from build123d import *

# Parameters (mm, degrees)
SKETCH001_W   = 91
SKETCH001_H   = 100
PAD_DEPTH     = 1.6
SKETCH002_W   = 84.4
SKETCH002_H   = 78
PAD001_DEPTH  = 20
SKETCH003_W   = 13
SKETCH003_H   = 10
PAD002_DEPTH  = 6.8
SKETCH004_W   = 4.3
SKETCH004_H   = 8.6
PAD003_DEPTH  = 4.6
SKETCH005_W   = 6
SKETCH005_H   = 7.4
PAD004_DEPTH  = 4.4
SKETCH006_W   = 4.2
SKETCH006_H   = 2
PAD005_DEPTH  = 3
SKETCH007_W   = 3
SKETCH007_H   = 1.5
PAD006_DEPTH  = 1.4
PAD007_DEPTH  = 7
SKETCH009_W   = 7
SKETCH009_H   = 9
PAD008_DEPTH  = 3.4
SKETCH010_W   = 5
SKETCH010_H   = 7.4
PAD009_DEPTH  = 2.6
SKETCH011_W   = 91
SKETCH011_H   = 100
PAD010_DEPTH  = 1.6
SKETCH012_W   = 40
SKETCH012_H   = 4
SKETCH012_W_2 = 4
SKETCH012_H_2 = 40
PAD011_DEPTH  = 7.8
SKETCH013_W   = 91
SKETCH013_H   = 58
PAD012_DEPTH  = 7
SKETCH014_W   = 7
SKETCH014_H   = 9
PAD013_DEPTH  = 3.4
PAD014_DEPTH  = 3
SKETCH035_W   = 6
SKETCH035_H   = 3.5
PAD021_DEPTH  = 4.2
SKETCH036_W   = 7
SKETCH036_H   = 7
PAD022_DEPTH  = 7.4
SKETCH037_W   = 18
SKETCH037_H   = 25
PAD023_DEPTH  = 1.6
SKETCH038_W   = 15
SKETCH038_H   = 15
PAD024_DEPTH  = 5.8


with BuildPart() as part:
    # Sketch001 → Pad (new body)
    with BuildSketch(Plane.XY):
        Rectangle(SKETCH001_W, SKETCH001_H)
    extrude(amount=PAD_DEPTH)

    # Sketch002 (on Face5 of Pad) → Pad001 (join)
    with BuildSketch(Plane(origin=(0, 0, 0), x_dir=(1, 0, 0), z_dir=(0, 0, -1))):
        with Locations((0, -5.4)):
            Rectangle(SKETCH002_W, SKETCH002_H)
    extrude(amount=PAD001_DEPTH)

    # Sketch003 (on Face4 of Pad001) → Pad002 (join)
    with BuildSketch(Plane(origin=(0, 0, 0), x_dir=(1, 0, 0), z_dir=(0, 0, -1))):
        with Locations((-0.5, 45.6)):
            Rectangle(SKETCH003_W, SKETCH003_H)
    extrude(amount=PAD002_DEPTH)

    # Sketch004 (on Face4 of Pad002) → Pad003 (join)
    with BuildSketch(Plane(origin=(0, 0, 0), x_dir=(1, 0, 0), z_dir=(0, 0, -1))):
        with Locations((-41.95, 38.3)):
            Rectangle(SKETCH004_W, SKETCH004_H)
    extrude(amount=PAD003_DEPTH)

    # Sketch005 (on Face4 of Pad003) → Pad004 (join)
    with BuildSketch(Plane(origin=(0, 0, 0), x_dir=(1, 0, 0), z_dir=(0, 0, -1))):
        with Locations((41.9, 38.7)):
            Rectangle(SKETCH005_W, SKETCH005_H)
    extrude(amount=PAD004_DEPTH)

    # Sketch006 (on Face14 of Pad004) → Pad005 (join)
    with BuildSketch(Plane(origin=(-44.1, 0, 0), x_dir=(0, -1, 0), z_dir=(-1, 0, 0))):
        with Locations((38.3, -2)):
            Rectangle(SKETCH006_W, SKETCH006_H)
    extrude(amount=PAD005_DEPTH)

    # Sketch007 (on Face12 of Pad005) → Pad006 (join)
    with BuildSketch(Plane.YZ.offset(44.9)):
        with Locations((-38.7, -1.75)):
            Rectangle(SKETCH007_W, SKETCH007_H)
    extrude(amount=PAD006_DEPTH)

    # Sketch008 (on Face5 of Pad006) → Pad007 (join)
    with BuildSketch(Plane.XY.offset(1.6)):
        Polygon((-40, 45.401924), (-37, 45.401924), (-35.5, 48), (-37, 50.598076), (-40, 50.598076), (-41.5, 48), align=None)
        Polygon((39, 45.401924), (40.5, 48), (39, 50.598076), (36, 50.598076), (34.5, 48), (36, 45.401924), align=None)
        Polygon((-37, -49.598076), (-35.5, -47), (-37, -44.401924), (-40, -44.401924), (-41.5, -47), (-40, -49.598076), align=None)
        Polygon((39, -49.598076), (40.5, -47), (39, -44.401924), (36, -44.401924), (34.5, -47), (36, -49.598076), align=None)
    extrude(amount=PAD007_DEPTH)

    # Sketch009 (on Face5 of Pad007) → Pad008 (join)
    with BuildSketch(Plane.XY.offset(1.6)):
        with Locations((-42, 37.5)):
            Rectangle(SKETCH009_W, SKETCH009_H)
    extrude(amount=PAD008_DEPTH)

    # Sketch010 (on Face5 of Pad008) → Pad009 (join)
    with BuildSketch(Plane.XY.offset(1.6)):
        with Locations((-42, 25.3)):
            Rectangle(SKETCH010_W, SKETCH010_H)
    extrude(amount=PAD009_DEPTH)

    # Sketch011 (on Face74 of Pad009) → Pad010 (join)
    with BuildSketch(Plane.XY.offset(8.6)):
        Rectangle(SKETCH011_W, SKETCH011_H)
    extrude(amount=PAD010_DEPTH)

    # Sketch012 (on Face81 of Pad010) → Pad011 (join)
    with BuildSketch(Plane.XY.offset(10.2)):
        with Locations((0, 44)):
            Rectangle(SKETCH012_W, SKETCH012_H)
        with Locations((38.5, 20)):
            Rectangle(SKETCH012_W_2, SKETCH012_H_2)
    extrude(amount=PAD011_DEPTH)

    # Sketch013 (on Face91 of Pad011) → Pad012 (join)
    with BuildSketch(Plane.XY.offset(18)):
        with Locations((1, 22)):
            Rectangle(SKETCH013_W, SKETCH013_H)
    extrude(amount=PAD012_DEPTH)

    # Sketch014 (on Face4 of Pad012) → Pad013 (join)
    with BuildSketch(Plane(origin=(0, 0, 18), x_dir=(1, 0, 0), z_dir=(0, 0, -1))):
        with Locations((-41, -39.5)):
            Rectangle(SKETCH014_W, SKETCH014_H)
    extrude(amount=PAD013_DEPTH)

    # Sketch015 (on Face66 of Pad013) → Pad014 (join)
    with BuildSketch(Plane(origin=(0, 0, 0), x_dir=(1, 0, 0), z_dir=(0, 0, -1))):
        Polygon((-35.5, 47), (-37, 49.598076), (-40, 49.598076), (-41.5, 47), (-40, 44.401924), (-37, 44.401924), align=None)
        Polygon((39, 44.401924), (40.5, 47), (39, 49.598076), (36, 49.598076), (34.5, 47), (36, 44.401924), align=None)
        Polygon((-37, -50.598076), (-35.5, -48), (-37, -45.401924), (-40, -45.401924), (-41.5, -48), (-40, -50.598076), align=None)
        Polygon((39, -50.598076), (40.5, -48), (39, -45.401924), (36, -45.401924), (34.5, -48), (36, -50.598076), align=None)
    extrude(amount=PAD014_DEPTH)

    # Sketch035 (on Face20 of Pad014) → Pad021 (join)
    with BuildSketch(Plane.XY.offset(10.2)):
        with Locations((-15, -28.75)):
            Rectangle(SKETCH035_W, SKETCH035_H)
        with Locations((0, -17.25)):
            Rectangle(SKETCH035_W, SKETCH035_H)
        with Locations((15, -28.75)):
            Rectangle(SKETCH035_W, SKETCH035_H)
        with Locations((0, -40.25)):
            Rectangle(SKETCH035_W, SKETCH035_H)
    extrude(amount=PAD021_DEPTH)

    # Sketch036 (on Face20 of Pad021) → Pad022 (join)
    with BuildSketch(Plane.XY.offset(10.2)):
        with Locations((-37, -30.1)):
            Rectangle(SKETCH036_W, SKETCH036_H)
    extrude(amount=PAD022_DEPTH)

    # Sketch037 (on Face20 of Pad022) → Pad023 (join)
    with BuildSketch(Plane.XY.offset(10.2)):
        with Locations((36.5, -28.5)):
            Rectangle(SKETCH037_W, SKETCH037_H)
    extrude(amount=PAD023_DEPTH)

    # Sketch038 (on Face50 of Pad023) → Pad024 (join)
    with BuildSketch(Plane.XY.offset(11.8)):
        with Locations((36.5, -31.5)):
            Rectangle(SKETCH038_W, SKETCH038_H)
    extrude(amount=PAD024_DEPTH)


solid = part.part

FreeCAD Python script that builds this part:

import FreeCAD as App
import Part
import Sketcher
from FreeCAD import Vector
Q = App.Units.Quantity


def add_polygon(sketch, points):
    """Adds a closed chain of lines whose ends are joined by coincident constraints."""
    first, n = sketch.GeometryCount, len(points)
    for a, b in zip(points, points[1:] + points[:1]):
        sketch.addGeometry(Part.LineSegment(App.Vector(*a, 0), App.Vector(*b, 0)), False)
    for i in range(n):
        sketch.addConstraint(Sketcher.Constraint("Coincident", first + i, 2, first + (i + 1) % n, 1))

doc = App.newDocument("Part")
body = doc.addObject("PartDesign::Body", "Body")

# Sketch on XY plane
sketch1 = doc.addObject("Sketcher::SketchObject", "Sketch")
body.addObject(sketch1)
sketch1.AttachmentSupport = (doc.XY_Plane, [""])
sketch1.MapMode = "FlatFace"
add_polygon(sketch1, [(-46, 50), (-46, -50), (46, -50), (46, 50)])  # lines 0-3
sketch1.addConstraint([
    Sketcher.Constraint("Vertical", 0),
    Sketcher.Constraint("Horizontal", 1),
    Sketcher.Constraint("Vertical", 2),
    Sketcher.Constraint("Horizontal", 3),
    Sketcher.Constraint("Symmetric", 0, 2, 2, 2, -1, 1),
    Sketcher.Constraint("DistanceX", 1, 1, 1, 2, 91.0),
    Sketcher.Constraint("DistanceY", 0, 2, 0, 1, 100.0),
])
pad1 = doc.addObject("PartDesign::Pad", "Pad")
body.addObject(pad1)
pad1.Profile = sketch1
pad1.Length = 1.6

# Sketch on XY plane
sketch2 = doc.addObject("Sketcher::SketchObject", "Sketch001")
body.addObject(sketch2)
sketch2.AttachmentSupport = (doc.XY_Plane, [""])
sketch2.MapMode = "FlatFace"
add_polygon(sketch2, [(-42, -34), (-42, 44), (42, 44), (42, -34)])  # lines 0-3
sketch2.addConstraint([
    Sketcher.Constraint("Vertical", 0),
    Sketcher.Constraint("Horizontal", 1),
    Sketcher.Constraint("Vertical", 2),
    Sketcher.Constraint("Horizontal", 3),
    Sketcher.Constraint("DistanceY", 0, 1, 0, 2, 78.0),
    Sketcher.Constraint("DistanceX", 1, 1, 1, 2, 84.4),
    Sketcher.Constraint("DistanceX", 0, 2, -1, 1, 42.2),
    Sketcher.Constraint("DistanceY", -1, 1, 0, 2, 44.4),
])
pad2 = doc.addObject("PartDesign::Pad", "Pad001")
body.addObject(pad2)
pad2.Profile = sketch2
pad2.Length = 20
pad2.Reversed = True

# Sketch on XY plane
sketch3 = doc.addObject("Sketcher::SketchObject", "Sketch002")
body.addObject(sketch3)
sketch3.AttachmentSupport = (doc.XY_Plane, [""])
sketch3.MapMode = "FlatFace"
add_polygon(sketch3, [(-7, -51), (-7, -41), (6, -41), (6, -51)])  # lines 0-3
sketch3.addConstraint([
    Sketcher.Constraint("Vertical", 0),
    Sketcher.Constraint("Horizontal", 1),
    Sketcher.Constraint("Vertical", 2),
    Sketcher.Constraint("Horizontal", 3),
    Sketcher.Constraint("DistanceX", 1, 1, 1, 2, 13.0),
    Sketcher.Constraint("DistanceY", 0, 1, 0, 2, 10.0),
    Sketcher.Constraint("DistanceX", 0, 2, -1, 1, 7.0),
    Sketcher.Constraint("DistanceY", 0, 2, -1, 1, 40.6),
])
pad3 = doc.addObject("PartDesign::Pad", "Pad002")
body.addObject(pad3)
pad3.Profile = sketch3
pad3.Length = 6.8
pad3.Reversed = True

# Sketch on XY plane
sketch4 = doc.addObject("Sketcher::SketchObject", "Sketch003")
body.addObject(sketch4)
sketch4.AttachmentSupport = (doc.XY_Plane, [""])
sketch4.MapMode = "FlatFace"
add_polygon(sketch4, [(-44.1, -42.6), (-44.1, -34), (-39.8, -34), (-39.8, -42.6)])  # lines 0-3
sketch4.addConstraint([
    Sketcher.Constraint("Vertical", 0),
    Sketcher.Constraint("Horizontal", 1),
    Sketcher.Constraint("Vertical", 2),
    Sketcher.Constraint("Horizontal", 3),
    Sketcher.Constraint("DistanceX", 1, 1, 1, 2, 4.3),
    Sketcher.Constraint("DistanceY", 0, 1, 0, 2, 8.6),
    Sketcher.Constraint("DistanceY", 0, 2, -1, 1, 34.0),
    Sketcher.Constraint("DistanceX", 0, 2, -1, 1, 44.1),
])
pad4 = doc.addObject("PartDesign::Pad", "Pad003")
body.addObject(pad4)
pad4.Profile = sketch4
pad4.Length = 4.6
pad4.Reversed = True

# Sketch on XY plane
sketch5 = doc.addObject("Sketcher::SketchObject", "Sketch004")
body.addObject(sketch5)
sketch5.AttachmentSupport = (doc.XY_Plane, [""])
sketch5.MapMode = "FlatFace"
add_polygon(sketch5, [(39, -42), (39, -35), (45, -35), (45, -42)])  # lines 0-3
sketch5.addConstraint([
    Sketcher.Constraint("Vertical", 0),
    Sketcher.Constraint("Horizontal", 1),
    Sketcher.Constraint("Vertical", 2),
    Sketcher.Constraint("Horizontal", 3),
    Sketcher.Constraint("DistanceX", 1, 1, 1, 2, 6.0),
    Sketcher.Constraint("DistanceY", 0, 1, 0, 2, 7.4),
    Sketcher.Constraint("DistanceY", 0, 2, -1, 1, 35.0),
    Sketcher.Constraint("DistanceX", -1, 1, 0, 2, 38.9),
])
pad5 = doc.addObject("PartDesign::Pad", "Pad004")
body.addObject(pad5)
pad5.Profile = sketch5
pad5.Length = 4.4
pad5.Reversed = True

# Sketch on YZ plane
sketch6 = doc.addObject("Sketcher::SketchObject", "Sketch005")
body.addObject(sketch6)
sketch6.AttachmentSupport = (doc.YZ_Plane, [""])
sketch6.MapMode = "FlatFace"
sketch6.AttachmentOffset = App.Placement(Vector(0, 0, -44.1), App.Rotation())
add_polygon(sketch6, [(-36.2, -1), (-36.2, -3), (-40.4, -3), (-40.4, -1)])  # lines 0-3
sketch6.addConstraint([
    Sketcher.Constraint("Vertical", 0),
    Sketcher.Constraint("Horizontal", 1),
    Sketcher.Constraint("Vertical", 2),
    Sketcher.Constraint("Horizontal", 3),
    Sketcher.Constraint("DistanceY", 0, 2, 0, 1, 2.0),
    Sketcher.Constraint("DistanceX", 1, 2, 1, 1, 4.2),
    Sketcher.Constraint("DistanceY", 0, 2, -1, 1, 3.0),
    Sketcher.Constraint("DistanceX", 0, 2, -1, 1, 36.2),
])
pad6 = doc.addObject("PartDesign::Pad", "Pad005")
body.addObject(pad6)
pad6.Profile = sketch6
pad6.Length = 3
pad6.Reversed = True

# Sketch on YZ plane
sketch7 = doc.addObject("Sketcher::SketchObject", "Sketch006")
body.addObject(sketch7)
sketch7.AttachmentSupport = (doc.YZ_Plane, [""])
sketch7.MapMode = "FlatFace"
sketch7.AttachmentOffset = App.Placement(Vector(0, 0, 44.9), App.Rotation())
add_polygon(sketch7, [(-40.2, -1), (-40.2, -2.5), (-37.2, -2.5), (-37.2, -1)])  # lines 0-3
sketch7.addConstraint([
    Sketcher.Constraint("Vertical", 0),
    Sketcher.Constraint("Horizontal", 1),
    Sketcher.Constraint("Vertical", 2),
    Sketcher.Constraint("Horizontal", 3),
    Sketcher.Constraint("DistanceX", 1, 1, 1, 2, 3.0),
    Sketcher.Constraint("DistanceY", 0, 2, 0, 1, 1.5),
    Sketcher.Constraint("DistanceY", 2, 2, -1, 1, 1.0),
    Sketcher.Constraint("DistanceX", 0, 2, -1, 1, 40.2),
])
pad7 = doc.addObject("PartDesign::Pad", "Pad006")
body.addObject(pad7)
pad7.Profile = sketch7
pad7.Length = 1.4

# Sketch on XY plane
sketch8 = doc.addObject("Sketcher::SketchObject", "Sketch007")
body.addObject(sketch8)
sketch8.AttachmentSupport = (doc.XY_Plane, [""])
sketch8.MapMode = "FlatFace"
sketch8.AttachmentOffset = App.Placement(Vector(0, 0, 1.6), App.Rotation())
add_polygon(sketch8, [(-40, 45.4), (-37, 45.4), (-35.5, 48), (-37, 50.6), (-40, 50.6), (-41.5, 48)])  # lines 0-5
add_polygon(sketch8, [(39, 45.4), (40.5, 48), (39, 50.6), (36, 50.6), (34.5, 48), (36, 45.4)])  # lines 6-11
add_polygon(sketch8, [(-37, -49.6), (-35.5, -47), (-37, -44.4), (-40, -44.4), (-41.5, -47), (-40, -49.6)])  # lines 12-17
add_polygon(sketch8, [(39, -49.6), (40.5, -47), (39, -44.4), (36, -44.4), (34.5, -47), (36, -49.6)])  # lines 18-23
sketch8.addConstraint([
    Sketcher.Constraint("Horizontal", 0),
    Sketcher.Constraint("Horizontal", 3),
    Sketcher.Constraint("Horizontal", 8),
    Sketcher.Constraint("Horizontal", 11),
    Sketcher.Constraint("Horizontal", 14),
    Sketcher.Constraint("Horizontal", 17),
    Sketcher.Constraint("Horizontal", 20),
    Sketcher.Constraint("Horizontal", 23),
    Sketcher.Constraint("Parallel", 1, 4),
    Sketcher.Constraint("Parallel", 2, 5),
    Sketcher.Constraint("Parallel", 4, 6),
    Sketcher.Constraint("Parallel", 5, 7),
    Sketcher.Constraint("Parallel", 6, 9),
    Sketcher.Constraint("Parallel", 7, 10),
    Sketcher.Constraint("Parallel", 9, 12),
    Sketcher.Constraint("Parallel", 10, 13),
    Sketcher.Constraint("Parallel", 12, 15),
    Sketcher.Constraint("Parallel", 13, 16),
    Sketcher.Constraint("Parallel", 15, 18),
    Sketcher.Constraint("Parallel", 16, 19),
    Sketcher.Constraint("Parallel", 18, 21),
    Sketcher.Constraint("Parallel", 19, 22),
    Sketcher.Constraint("Horizontal", 1, 2, 4, 2),
    Sketcher.Constraint("Horizontal", 4, 2, 6, 2),
    Sketcher.Constraint("Horizontal", 3, 2, 7, 2),
    Sketcher.Constraint("Horizontal", 6, 2, 9, 2),
    Sketcher.Constraint("Horizontal", 5, 2, 10, 2),
    Sketcher.Constraint("Horizontal", 12, 2, 15, 2),
    Sketcher.Constraint("Horizontal", 15, 2, 18, 2),
    Sketcher.Constraint("Horizontal", 14, 2, 19, 2),
    Sketcher.Constraint("Horizontal", 18, 2, 21, 2),
    Sketcher.Constraint("Horizontal", 17, 2, 22, 2),
    Sketcher.Constraint("Vertical", 0, 2, 2, 2),
    Sketcher.Constraint("Vertical", 3, 2, 5, 2),
    Sketcher.Constraint("Vertical", 1, 2, 12, 2),
    Sketcher.Constraint("Vertical", 2, 2, 13, 2),
    Sketcher.Constraint("Vertical", 5, 2, 14, 2),
    Sketcher.Constraint("Vertical", 14, 2, 16, 2),
    Sketcher.Constraint("Vertical", 6, 2, 18, 2),
    Sketcher.Constraint("Vertical", 10, 2, 20, 2),
    Sketcher.Constraint("Equal", 3, 8),
    Sketcher.Constraint("DistanceX", 0, 1, 0, 2, 3.0),
    Sketcher.Constraint("Angle", 1, Q("59.999998 deg")),
    Sketcher.Constraint("Distance", 1, 3.0),
    Sketcher.Constraint("DistanceX", 0, 2, -1, 1, 37.0),
    Sketcher.Constraint("DistanceY", -1, 1, 1, 2, 48.0),
    Sketcher.Constraint("DistanceX", -1, 1, 7, 2, 39.0),
    Sketcher.Constraint("DistanceY", 12, 2, -1, 1, 47.0),
])
pad8 = doc.addObject("PartDesign::Pad", "Pad007")
body.addObject(pad8)
pad8.Profile = sketch8
pad8.Length = 7

# Sketch on XY plane
sketch9 = doc.addObject("Sketcher::SketchObject", "Sketch008")
body.addObject(sketch9)
sketch9.AttachmentSupport = (doc.XY_Plane, [""])
sketch9.MapMode = "FlatFace"
sketch9.AttachmentOffset = App.Placement(Vector(0, 0, 1.6), App.Rotation())
add_polygon(sketch9, [(-46, 42), (-46, 33), (-38, 33), (-38, 42)])  # lines 0-3
sketch9.addConstraint([
    Sketcher.Constraint("Vertical", 0),
    Sketcher.Constraint("Horizontal", 1),
    Sketcher.Constraint("Vertical", 2),
    Sketcher.Constraint("Horizontal", 3),
    Sketcher.Constraint("DistanceX", 1, 1, 1, 2, 7.0),
    Sketcher.Constraint("DistanceY", 0, 2, 0, 1, 9.0),
    Sketcher.Constraint("DistanceY", -1, 1, 0, 2, 33.0),
    Sketcher.Constraint("DistanceX", 0, 2, -1, 1, 45.5),
])
pad9 = doc.addObject("PartDesign::Pad", "Pad008")
body.addObject(pad9)
pad9.Profile = sketch9
pad9.Length = 3.4

# Sketch on XY plane
sketch10 = doc.addObject("Sketcher::SketchObject", "Sketch009")
body.addObject(sketch10)
sketch10.AttachmentSupport = (doc.XY_Plane, [""])
sketch10.MapMode = "FlatFace"
sketch10.AttachmentOffset = App.Placement(Vector(0, 0, 1.6), App.Rotation())
add_polygon(sketch10, [(-44, 29), (-44, 22), (-40, 22), (-40, 29)])  # lines 0-3
sketch10.addConstraint([
    Sketcher.Constraint("Vertical", 0),
    Sketcher.Constraint("Horizontal", 1),
    Sketcher.Constraint("Vertical", 2),
    Sketcher.Constraint("Horizontal", 3),
    Sketcher.Constraint("DistanceX", 1, 1, 1, 2, 5.0),
    Sketcher.Constraint("DistanceY", 0, 2, 0, 1, 7.4),
    Sketcher.Constraint("DistanceY", -1, 1, 2, 2, 29.0),
    Sketcher.Constraint("DistanceX", 0, 2, -1, 1, 44.5),
])
pad10 = doc.addObject("PartDesign::Pad", "Pad009")
body.addObject(pad10)
pad10.Profile = sketch10
pad10.Length = 2.6

# Sketch on XY plane
sketch11 = doc.addObject("Sketcher::SketchObject", "Sketch010")
body.addObject(sketch11)
sketch11.AttachmentSupport = (doc.XY_Plane, [""])
sketch11.MapMode = "FlatFace"
sketch11.AttachmentOffset = App.Placement(Vector(0, 0, 8.6), App.Rotation())
add_polygon(sketch11, [(-46, 50), (-46, -50), (46, -50), (46, 50)])  # lines 0-3
sketch11.addConstraint([
    Sketcher.Constraint("Vertical", 0),
    Sketcher.Constraint("Horizontal", 1),
    Sketcher.Constraint("Vertical", 2),
    Sketcher.Constraint("Horizontal", 3),
    Sketcher.Constraint("Symmetric", 0, 2, 2, 2, -1, 1),
    Sketcher.Constraint("DistanceX", 1, 1, 1, 2, 91.0),
    Sketcher.Constraint("DistanceY", 0, 2, 0, 1, 100.0),
])
pad11 = doc.addObject("PartDesign::Pad", "Pad010")
body.addObject(pad11)
pad11.Profile = sketch11
pad11.Length = 1.6

# Sketch on XY plane
sketch12 = doc.addObject("Sketcher::SketchObject", "Sketch011")
body.addObject(sketch12)
sketch12.AttachmentSupport = (doc.XY_Plane, [""])
sketch12.MapMode = "FlatFace"
sketch12.AttachmentOffset = App.Placement(Vector(0, 0, 10.2), App.Rotation())
add_polygon(sketch12, [(-20, 46), (-20, 42), (20, 42), (20, 46)])  # lines 0-3
add_polygon(sketch12, [(36.5, 40), (36.5, 0), (40.5, 0), (40.5, 40)])  # lines 4-7
sketch12.addConstraint([
    Sketcher.Constraint("Vertical", 0),
    Sketcher.Constraint("Horizontal", 1),
    Sketcher.Constraint("Vertical", 2),
    Sketcher.Constraint("Horizontal", 3),
    Sketcher.Constraint("Vertical", 4),
    Sketcher.Constraint("Horizontal", 5),
    Sketcher.Constraint("Vertical", 6),
    Sketcher.Constraint("Horizontal", 7),
    Sketcher.Constraint("PointOnObject", 4, 2, -1),
    Sketcher.Constraint("Equal", 7, 0),
    Sketcher.Constraint("Equal", 3, 4),
    Sketcher.Constraint("DistanceX", 1, 1, 1, 2, 40.0),
    Sketcher.Constraint("DistanceX", 5, 1, 5, 2, 4.0),
    Sketcher.Constraint("DistanceX", 0, 2, -1, 1, 20.0),
    Sketcher.Constraint("DistanceY", -1, 1, 0, 2, 42.0),
    Sketcher.Constraint("DistanceX", -1, 1, 4, 2, 36.5),
])
pad12 = doc.addObject("PartDesign::Pad", "Pad011")
body.addObject(pad12)
pad12.Profile = sketch12
pad12.Length = 7.8

# Sketch on XY plane
sketch13 = doc.addObject("Sketcher::SketchObject", "Sketch012")
body.addObject(sketch13)
sketch13.AttachmentSupport = (doc.XY_Plane, [""])
sketch13.MapMode = "FlatFace"
sketch13.AttachmentOffset = App.Placement(Vector(0, 0, 18), App.Rotation())
add_polygon(sketch13, [(-44, 51), (-44, -7), (46, -7), (46, 51)])  # lines 0-3
sketch13.addConstraint([
    Sketcher.Constraint("Vertical", 0),
    Sketcher.Constraint("Horizontal", 1),
    Sketcher.Constraint("Vertical", 2),
    Sketcher.Constraint("Horizontal", 3),
    Sketcher.Constraint("DistanceX", 1, 1, 1, 2, 91.0),
    Sketcher.Constraint("DistanceY", 0, 2, 0, 1, 58.0),
    Sketcher.Constraint("DistanceY", 0, 2, -1, 1, 7.0),
    Sketcher.Constraint("DistanceX", 0, 2, -1, 1, 44.5),
])
pad13 = doc.addObject("PartDesign::Pad", "Pad012")
body.addObject(pad13)
pad13.Profile = sketch13
pad13.Length = 7

# Sketch on XY plane
sketch14 = doc.addObject("Sketcher::SketchObject", "Sketch013")
body.addObject(sketch14)
sketch14.AttachmentSupport = (doc.XY_Plane, [""])
sketch14.MapMode = "FlatFace"
sketch14.AttachmentOffset = App.Placement(Vector(0, 0, 18), App.Rotation())
add_polygon(sketch14, [(-44, 35), (-44, 44), (-38, 44), (-38, 35)])  # lines 0-3
sketch14.addConstraint([
    Sketcher.Constraint("Vertical", 0),
    Sketcher.Constraint("Horizontal", 1),
    Sketcher.Constraint("Vertical", 2),
    Sketcher.Constraint("Horizontal", 3),
    Sketcher.Constraint("DistanceX", 1, 1, 1, 2, 7.0),
    Sketcher.Constraint("DistanceY", 0, 1, 0, 2, 9.0),
    Sketcher.Constraint("DistanceY", -1, 1, 0, 2, 44.0),
    Sketcher.Constraint("DistanceX", 0, 2, -1, 1, 44.5),
])
pad14 = doc.addObject("PartDesign::Pad", "Pad013")
body.addObject(pad14)
pad14.Profile = sketch14
pad14.Length = 3.4
pad14.Reversed = True

# Sketch on XY plane
sketch15 = doc.addObject("Sketcher::SketchObject", "Sketch014")
body.addObject(sketch15)
sketch15.AttachmentSupport = (doc.XY_Plane, [""])
sketch15.MapMode = "FlatFace"
add_polygon(sketch15, [(-35.5, -47), (-37, -49.6), (-40, -49.6), (-41.5, -47), (-40, -44.4), (-37, -44.4)])  # lines 0-5
add_polygon(sketch15, [(39, -44.4), (40.5, -47), (39, -49.6), (36, -49.6), (34.5, -47), (36, -44.4)])  # lines 6-11
add_polygon(sketch15, [(-37, 50.6), (-35.5, 48), (-37, 45.4), (-40, 45.4), (-41.5, 48), (-40, 50.6)])  # lines 12-17
add_polygon(sketch15, [(39, 50.6), (40.5, 48), (39, 45.4), (36, 45.4), (34.5, 48), (36, 50.6)])  # lines 18-23
sketch15.addConstraint([
    Sketcher.Constraint("Horizontal", 1),
    Sketcher.Constraint("Horizontal", 4),
    Sketcher.Constraint("Horizontal", 8),
    Sketcher.Constraint("Horizontal", 11),
    Sketcher.Constraint("Horizontal", 14),
    Sketcher.Constraint("Horizontal", 17),
    Sketcher.Constraint("Horizontal", 20),
    Sketcher.Constraint("Horizontal", 23),
    Sketcher.Constraint("Parallel", 0, 3),
    Sketcher.Constraint("Parallel", 2, 5),
    Sketcher.Constraint("Parallel", 5, 6),
    Sketcher.Constraint("Parallel", 3, 7),
    Sketcher.Constraint("Parallel", 6, 9),
    Sketcher.Constraint("Parallel", 7, 10),
    Sketcher.Constraint("Parallel", 9, 12),
    Sketcher.Constraint("Parallel", 10, 13),
    Sketcher.Constraint("Parallel", 12, 15),
    Sketcher.Constraint("Parallel", 13, 16),
    Sketcher.Constraint("Parallel", 15, 18),
    Sketcher.Constraint("Parallel", 16, 19),
    Sketcher.Constraint("Parallel", 18, 21),
    Sketcher.Constraint("Parallel", 19, 22),
    Sketcher.Constraint("Horizontal", 2, 2, 5, 2),
    Sketcher.Constraint("Horizontal", 5, 2, 6, 2),
    Sketcher.Constraint("Horizontal", 1, 2, 7, 2),
    Sketcher.Constraint("Horizontal", 6, 2, 9, 2),
    Sketcher.Constraint("Horizontal", 4, 2, 10, 2),
    Sketcher.Constraint("Horizontal", 12, 2, 15, 2),
    Sketcher.Constraint("Horizontal", 15, 2, 18, 2),
    Sketcher.Constraint("Horizontal", 14, 2, 19, 2),
    Sketcher.Constraint("Horizontal", 18, 2, 21, 2),
    Sketcher.Constraint("Horizontal", 17, 2, 22, 2),
    Sketcher.Constraint("Vertical", 1, 2, 3, 2),
    Sketcher.Constraint("Vertical", 0, 2, 4, 2),
    Sketcher.Constraint("Vertical", 5, 2, 12, 2),
    Sketcher.Constraint("Vertical", 4, 2, 13, 2),
    Sketcher.Constraint("Vertical", 3, 2, 14, 2),
    Sketcher.Constraint("Vertical", 14, 2, 16, 2),
    Sketcher.Constraint("Vertical", 6, 2, 18, 2),
    Sketcher.Constraint("Vertical", 10, 2, 20, 2),
    Sketcher.Constraint("Equal", 4, 8),
    Sketcher.Constraint("DistanceX", 1, 2, 1, 1, 3.0),
    Sketcher.Constraint("Angle", 0, Q("-120.000002 deg")),
    Sketcher.Constraint("Distance", 0, 3.0),
    Sketcher.Constraint("DistanceX", 0, 2, -1, 1, 37.0),
    Sketcher.Constraint("DistanceY", 2, 2, -1, 1, 47.0),
    Sketcher.Constraint("DistanceX", -1, 1, 7, 2, 39.0),
    Sketcher.Constraint("DistanceY", -1, 1, 12, 2, 48.0),
])
pad15 = doc.addObject("PartDesign::Pad", "Pad014")
body.addObject(pad15)
pad15.Profile = sketch15
pad15.Length = 3
pad15.Reversed = True

# Sketch on XY plane
sketch16 = doc.addObject("Sketcher::SketchObject", "Sketch015")
body.addObject(sketch16)
sketch16.AttachmentSupport = (doc.XY_Plane, [""])
sketch16.MapMode = "FlatFace"
sketch16.AttachmentOffset = App.Placement(Vector(0, 0, 10.2), App.Rotation())
add_polygon(sketch16, [(-18, -27), (-18, -30.5), (-12, -30.5), (-12, -27)])  # lines 0-3
add_polygon(sketch16, [(-3, -15.5), (-3, -19), (3, -19), (3, -15.5)])  # lines 4-7
add_polygon(sketch16, [(12, -27), (12, -30.5), (18, -30.5), (18, -27)])  # lines 8-11
add_polygon(sketch16, [(-3, -38.5), (-3, -42), (3, -42), (3, -38.5)])  # lines 12-15
sketch16.addConstraint([
    Sketcher.Constraint("Vertical", 0),
    Sketcher.Constraint("Horizontal", 1),
    Sketcher.Constraint("Vertical", 2),
    Sketcher.Constraint("Horizontal", 3),
    Sketcher.Constraint("Vertical", 4),
    Sketcher.Constraint("Horizontal", 5),
    Sketcher.Constraint("Vertical", 6),
    Sketcher.Constraint("Horizontal", 7),
    Sketcher.Constraint("Vertical", 8),
    Sketcher.Constraint("Horizontal", 9),
    Sketcher.Constraint("Vertical", 10),
    Sketcher.Constraint("Horizontal", 11),
    Sketcher.Constraint("Vertical", 12),
    Sketcher.Constraint("Horizontal", 13),
    Sketcher.Constraint("Vertical", 14),
    Sketcher.Constraint("Horizontal", 15),
    Sketcher.Constraint("Symmetric", 1, 2, 8, 2, -2),
    Sketcher.Constraint("Symmetric", 3, 2, 10, 2, -2),
    Sketcher.Constraint("Vertical", 7, 2, 12, 2),
    Sketcher.Constraint("Vertical", 6, 2, 13, 2),
    Sketcher.Constraint("Equal", 3, 5),
    Sketcher.Constraint("Equal", 2, 4),
    Sketcher.Constraint("Equal", 10, 12),
    Sketcher.Constraint("DistanceX", 1, 1, 1, 2, 6.0),
    Sketcher.Constraint("DistanceY", 0, 2, 0, 1, 3.5),
    Sketcher.Constraint("DistanceX", 0, 2, -1, 1, 18.0),
    Sketcher.Constraint("DistanceY", 2, 2, -1, 1, 27.0),
    Sketcher.Constraint("DistanceX", 4, 2, -1, 1, 3.0),
    Sketcher.Constraint("DistanceY", 4, 2, -1, 1, 19.0),
    Sketcher.Constraint("DistanceY", 12, 2, -1, 1, 42.0),
])
pad16 = doc.addObject("PartDesign::Pad", "Pad015")
body.addObject(pad16)
pad16.Profile = sketch16
pad16.Length = 4.2

# Sketch on XY plane
sketch17 = doc.addObject("Sketcher::SketchObject", "Sketch016")
body.addObject(sketch17)
sketch17.AttachmentSupport = (doc.XY_Plane, [""])
sketch17.MapMode = "FlatFace"
sketch17.AttachmentOffset = App.Placement(Vector(0, 0, 10.2), App.Rotation())
add_polygon(sketch17, [(-40, -27), (-40, -34), (-34, -34), (-34, -27)])  # lines 0-3
sketch17.addConstraint([
    Sketcher.Constraint("Vertical", 0),
    Sketcher.Constraint("Horizontal", 1),
    Sketcher.Constraint("Vertical", 2),
    Sketcher.Constraint("Horizontal", 3),
    Sketcher.Constraint("Equal", 3, 0),
    Sketcher.Constraint("DistanceX", 1, 1, 1, 2, 7.0),
    Sketcher.Constraint("DistanceX", 0, 2, -1, 1, 40.5),
    Sketcher.Constraint("DistanceY", 0, 2, -1, 1, 33.6),
])
pad17 = doc.addObject("PartDesign::Pad", "Pad016")
body.addObject(pad17)
pad17.Profile = sketch17
pad17.Length = 7.4

# Sketch on XY plane
sketch18 = doc.addObject("Sketcher::SketchObject", "Sketch017")
body.addObject(sketch18)
sketch18.AttachmentSupport = (doc.XY_Plane, [""])
sketch18.MapMode = "FlatFace"
sketch18.AttachmentOffset = App.Placement(Vector(0, 0, 10.2), App.Rotation())
add_polygon(sketch18, [(28, -16), (28, -41), (46, -41), (46, -16)])  # lines 0-3
sketch18.addConstraint([
    Sketcher.Constraint("Vertical", 0),
    Sketcher.Constraint("Horizontal", 1),
    Sketcher.Constraint("Vertical", 2),
    Sketcher.Constraint("Horizontal", 3),
    Sketcher.Constraint("DistanceX", 1, 1, 1, 2, 18.0),
    Sketcher.Constraint("DistanceY", 0, 2, 0, 1, 25.0),
    Sketcher.Constraint("DistanceY", 0, 2, -1, 1, 41.0),
    Sketcher.Constraint("DistanceX", -1, 1, 0, 2, 27.5),
])
pad18 = doc.addObject("PartDesign::Pad", "Pad017")
body.addObject(pad18)
pad18.Profile = sketch18
pad18.Length = 1.6

# Sketch on XY plane
sketch19 = doc.addObject("Sketcher::SketchObject", "Sketch018")
body.addObject(sketch19)
sketch19.AttachmentSupport = (doc.XY_Plane, [""])
sketch19.MapMode = "FlatFace"
sketch19.AttachmentOffset = App.Placement(Vector(0, 0, 11.8), App.Rotation())
add_polygon(sketch19, [(29, -24), (29, -39), (44, -39), (44, -24)])  # lines 0-3
sketch19.addConstraint([
    Sketcher.Constraint("Vertical", 0),
    Sketcher.Constraint("Horizontal", 1),
    Sketcher.Constraint("Vertical", 2),
    Sketcher.Constraint("Horizontal", 3),
    Sketcher.Constraint("Equal", 3, 0),
    Sketcher.Constraint("DistanceX", 1, 1, 1, 2, 15.0),
    Sketcher.Constraint("DistanceX", -1, 1, 0, 2, 29.0),
    Sketcher.Constraint("DistanceY", 0, 2, -1, 1, 39.0),
])
pad19 = doc.addObject("PartDesign::Pad", "Pad018")
body.addObject(pad19)
pad19.Profile = sketch19
pad19.Length = 5.8

doc.recompute()
